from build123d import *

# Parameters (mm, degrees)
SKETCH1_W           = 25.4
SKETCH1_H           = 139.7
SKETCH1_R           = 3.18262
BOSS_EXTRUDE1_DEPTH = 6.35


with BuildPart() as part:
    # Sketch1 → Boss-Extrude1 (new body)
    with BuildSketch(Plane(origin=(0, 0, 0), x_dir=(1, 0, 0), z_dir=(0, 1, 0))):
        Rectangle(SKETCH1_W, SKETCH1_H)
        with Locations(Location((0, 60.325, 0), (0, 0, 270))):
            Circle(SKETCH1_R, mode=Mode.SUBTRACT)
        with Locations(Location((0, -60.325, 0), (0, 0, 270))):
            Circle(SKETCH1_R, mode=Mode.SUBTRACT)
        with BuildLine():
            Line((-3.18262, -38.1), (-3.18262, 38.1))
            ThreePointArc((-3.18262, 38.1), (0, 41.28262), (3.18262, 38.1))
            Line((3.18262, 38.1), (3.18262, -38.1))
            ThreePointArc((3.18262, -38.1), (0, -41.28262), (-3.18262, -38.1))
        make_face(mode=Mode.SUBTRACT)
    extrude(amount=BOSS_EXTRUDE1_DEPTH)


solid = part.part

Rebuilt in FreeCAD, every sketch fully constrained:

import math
import FreeCAD as App
import Part
import Sketcher
Q = App.Units.Quantity


def add_polygon(sketch, points):
    """Adds a closed chain of lines whose ends are joined by coincident constraints."""
    first, n = sketch.GeometryCount, len(points)
    for a, b in zip(points, points[1:] + points[:1]):
        sketch.addGeometry(Part.LineSegment(App.Vector(*a, 0), App.Vector(*b, 0)), False)
    for i in range(n):
        sketch.addConstraint(Sketcher.Constraint("Coincident", first + i, 2, first + (i + 1) % n, 1))

doc = App.newDocument("Part")
body = doc.addObject("PartDesign::Body", "Body")

# Sketch on XZ plane
sketch1 = doc.addObject("Sketcher::SketchObject", "Sketch")
body.addObject(sketch1)
sketch1.AttachmentSupport = (doc.XZ_Plane, [""])
sketch1.MapMode = "FlatFace"
add_polygon(sketch1, [(-12.7, -69.8), (-12.7, 69.8), (12.7, 69.8), (12.7, -69.8)])  # lines 0-3
sketch1.addGeometry(Part.Circle(App.Vector(0, 60.3, 0), App.Vector(0, 0, 1), 3.2), False)  # 4
sketch1.addGeometry(Part.ArcOfCircle(Part.Circle(App.Vector(0, 38.1, 0), App.Vector(0, 0, 1), 3.2), math.radians(0), math.radians(180)), False)  # 5
sketch1.addGeometry(Part.LineSegment(App.Vector(-3.2, 38.1, 0), App.Vector(-3.2, -38.1, 0)), False)  # 6
sketch1.addGeometry(Part.ArcOfCircle(Part.Circle(App.Vector(0, -38.1, 0), App.Vector(0, 0, 1), 3.2), math.radians(180), math.radians(360)), False)  # 7
sketch1.addGeometry(Part.LineSegment(App.Vector(3.2, -38.1, 0), App.Vector(3.2, 38.1, 0)), False)  # 8
sketch1.addGeometry(Part.Circle(App.Vector(0, -60.3, 0), App.Vector(0, 0, 1), 3.2), False)  # 9
sketch1.addConstraint([
    Sketcher.Constraint("Tangent", 5, 2, 6, 1),
    Sketcher.Constraint("Tangent", 6, 2, 7, 1),
    Sketcher.Constraint("Tangent", 7, 2, 8, 1),
    Sketcher.Constraint("Tangent", 8, 2, 5, 1),
    Sketcher.Constraint("Vertical", 0),
    Sketcher.Constraint("Horizontal", 1),
    Sketcher.Constraint("Vertical", 2),
    Sketcher.Constraint("Horizontal", 3),
    Sketcher.Constraint("Vertical", 6),
    Sketcher.Constraint("Vertical", 8),
    Sketcher.Constraint("Equal", 4, 5),
    Sketcher.Constraint("Equal", 7, 9),
    Sketcher.Constraint("Symmetric", 5, 3, 7, 3, -1, 1),
    Sketcher.Constraint("Symmetric", 4, 3, 9, 3, -1, 1),
    Sketcher.Constraint("Symmetric", 0, 2, 2, 2, -1, 1),
    Sketcher.Constraint("PointOnObject", 4, 3, -2),
    Sketcher.Constraint("DistanceX", 1, 1, 1, 2, Q("1 in")),
    Sketcher.Constraint("DistanceY", 6, 2, 6, 1, Q("3 in")),
    Sketcher.Constraint("DistanceY", 0, 1, 0, 2, Q("5.5 in")),
    Sketcher.Constraint("Diameter", 4, Q("0.2506 in")),
    Sketcher.Constraint("DistanceY", 9, 3, 4, 3, Q("4.75 in")),
])
pad1 = doc.addObject("PartDesign::Pad", "Pad")
body.addObject(pad1)
pad1.Profile = sketch1
pad1.Length = Q("0.25 in")
pad1.Reversed = True

doc.recompute()
